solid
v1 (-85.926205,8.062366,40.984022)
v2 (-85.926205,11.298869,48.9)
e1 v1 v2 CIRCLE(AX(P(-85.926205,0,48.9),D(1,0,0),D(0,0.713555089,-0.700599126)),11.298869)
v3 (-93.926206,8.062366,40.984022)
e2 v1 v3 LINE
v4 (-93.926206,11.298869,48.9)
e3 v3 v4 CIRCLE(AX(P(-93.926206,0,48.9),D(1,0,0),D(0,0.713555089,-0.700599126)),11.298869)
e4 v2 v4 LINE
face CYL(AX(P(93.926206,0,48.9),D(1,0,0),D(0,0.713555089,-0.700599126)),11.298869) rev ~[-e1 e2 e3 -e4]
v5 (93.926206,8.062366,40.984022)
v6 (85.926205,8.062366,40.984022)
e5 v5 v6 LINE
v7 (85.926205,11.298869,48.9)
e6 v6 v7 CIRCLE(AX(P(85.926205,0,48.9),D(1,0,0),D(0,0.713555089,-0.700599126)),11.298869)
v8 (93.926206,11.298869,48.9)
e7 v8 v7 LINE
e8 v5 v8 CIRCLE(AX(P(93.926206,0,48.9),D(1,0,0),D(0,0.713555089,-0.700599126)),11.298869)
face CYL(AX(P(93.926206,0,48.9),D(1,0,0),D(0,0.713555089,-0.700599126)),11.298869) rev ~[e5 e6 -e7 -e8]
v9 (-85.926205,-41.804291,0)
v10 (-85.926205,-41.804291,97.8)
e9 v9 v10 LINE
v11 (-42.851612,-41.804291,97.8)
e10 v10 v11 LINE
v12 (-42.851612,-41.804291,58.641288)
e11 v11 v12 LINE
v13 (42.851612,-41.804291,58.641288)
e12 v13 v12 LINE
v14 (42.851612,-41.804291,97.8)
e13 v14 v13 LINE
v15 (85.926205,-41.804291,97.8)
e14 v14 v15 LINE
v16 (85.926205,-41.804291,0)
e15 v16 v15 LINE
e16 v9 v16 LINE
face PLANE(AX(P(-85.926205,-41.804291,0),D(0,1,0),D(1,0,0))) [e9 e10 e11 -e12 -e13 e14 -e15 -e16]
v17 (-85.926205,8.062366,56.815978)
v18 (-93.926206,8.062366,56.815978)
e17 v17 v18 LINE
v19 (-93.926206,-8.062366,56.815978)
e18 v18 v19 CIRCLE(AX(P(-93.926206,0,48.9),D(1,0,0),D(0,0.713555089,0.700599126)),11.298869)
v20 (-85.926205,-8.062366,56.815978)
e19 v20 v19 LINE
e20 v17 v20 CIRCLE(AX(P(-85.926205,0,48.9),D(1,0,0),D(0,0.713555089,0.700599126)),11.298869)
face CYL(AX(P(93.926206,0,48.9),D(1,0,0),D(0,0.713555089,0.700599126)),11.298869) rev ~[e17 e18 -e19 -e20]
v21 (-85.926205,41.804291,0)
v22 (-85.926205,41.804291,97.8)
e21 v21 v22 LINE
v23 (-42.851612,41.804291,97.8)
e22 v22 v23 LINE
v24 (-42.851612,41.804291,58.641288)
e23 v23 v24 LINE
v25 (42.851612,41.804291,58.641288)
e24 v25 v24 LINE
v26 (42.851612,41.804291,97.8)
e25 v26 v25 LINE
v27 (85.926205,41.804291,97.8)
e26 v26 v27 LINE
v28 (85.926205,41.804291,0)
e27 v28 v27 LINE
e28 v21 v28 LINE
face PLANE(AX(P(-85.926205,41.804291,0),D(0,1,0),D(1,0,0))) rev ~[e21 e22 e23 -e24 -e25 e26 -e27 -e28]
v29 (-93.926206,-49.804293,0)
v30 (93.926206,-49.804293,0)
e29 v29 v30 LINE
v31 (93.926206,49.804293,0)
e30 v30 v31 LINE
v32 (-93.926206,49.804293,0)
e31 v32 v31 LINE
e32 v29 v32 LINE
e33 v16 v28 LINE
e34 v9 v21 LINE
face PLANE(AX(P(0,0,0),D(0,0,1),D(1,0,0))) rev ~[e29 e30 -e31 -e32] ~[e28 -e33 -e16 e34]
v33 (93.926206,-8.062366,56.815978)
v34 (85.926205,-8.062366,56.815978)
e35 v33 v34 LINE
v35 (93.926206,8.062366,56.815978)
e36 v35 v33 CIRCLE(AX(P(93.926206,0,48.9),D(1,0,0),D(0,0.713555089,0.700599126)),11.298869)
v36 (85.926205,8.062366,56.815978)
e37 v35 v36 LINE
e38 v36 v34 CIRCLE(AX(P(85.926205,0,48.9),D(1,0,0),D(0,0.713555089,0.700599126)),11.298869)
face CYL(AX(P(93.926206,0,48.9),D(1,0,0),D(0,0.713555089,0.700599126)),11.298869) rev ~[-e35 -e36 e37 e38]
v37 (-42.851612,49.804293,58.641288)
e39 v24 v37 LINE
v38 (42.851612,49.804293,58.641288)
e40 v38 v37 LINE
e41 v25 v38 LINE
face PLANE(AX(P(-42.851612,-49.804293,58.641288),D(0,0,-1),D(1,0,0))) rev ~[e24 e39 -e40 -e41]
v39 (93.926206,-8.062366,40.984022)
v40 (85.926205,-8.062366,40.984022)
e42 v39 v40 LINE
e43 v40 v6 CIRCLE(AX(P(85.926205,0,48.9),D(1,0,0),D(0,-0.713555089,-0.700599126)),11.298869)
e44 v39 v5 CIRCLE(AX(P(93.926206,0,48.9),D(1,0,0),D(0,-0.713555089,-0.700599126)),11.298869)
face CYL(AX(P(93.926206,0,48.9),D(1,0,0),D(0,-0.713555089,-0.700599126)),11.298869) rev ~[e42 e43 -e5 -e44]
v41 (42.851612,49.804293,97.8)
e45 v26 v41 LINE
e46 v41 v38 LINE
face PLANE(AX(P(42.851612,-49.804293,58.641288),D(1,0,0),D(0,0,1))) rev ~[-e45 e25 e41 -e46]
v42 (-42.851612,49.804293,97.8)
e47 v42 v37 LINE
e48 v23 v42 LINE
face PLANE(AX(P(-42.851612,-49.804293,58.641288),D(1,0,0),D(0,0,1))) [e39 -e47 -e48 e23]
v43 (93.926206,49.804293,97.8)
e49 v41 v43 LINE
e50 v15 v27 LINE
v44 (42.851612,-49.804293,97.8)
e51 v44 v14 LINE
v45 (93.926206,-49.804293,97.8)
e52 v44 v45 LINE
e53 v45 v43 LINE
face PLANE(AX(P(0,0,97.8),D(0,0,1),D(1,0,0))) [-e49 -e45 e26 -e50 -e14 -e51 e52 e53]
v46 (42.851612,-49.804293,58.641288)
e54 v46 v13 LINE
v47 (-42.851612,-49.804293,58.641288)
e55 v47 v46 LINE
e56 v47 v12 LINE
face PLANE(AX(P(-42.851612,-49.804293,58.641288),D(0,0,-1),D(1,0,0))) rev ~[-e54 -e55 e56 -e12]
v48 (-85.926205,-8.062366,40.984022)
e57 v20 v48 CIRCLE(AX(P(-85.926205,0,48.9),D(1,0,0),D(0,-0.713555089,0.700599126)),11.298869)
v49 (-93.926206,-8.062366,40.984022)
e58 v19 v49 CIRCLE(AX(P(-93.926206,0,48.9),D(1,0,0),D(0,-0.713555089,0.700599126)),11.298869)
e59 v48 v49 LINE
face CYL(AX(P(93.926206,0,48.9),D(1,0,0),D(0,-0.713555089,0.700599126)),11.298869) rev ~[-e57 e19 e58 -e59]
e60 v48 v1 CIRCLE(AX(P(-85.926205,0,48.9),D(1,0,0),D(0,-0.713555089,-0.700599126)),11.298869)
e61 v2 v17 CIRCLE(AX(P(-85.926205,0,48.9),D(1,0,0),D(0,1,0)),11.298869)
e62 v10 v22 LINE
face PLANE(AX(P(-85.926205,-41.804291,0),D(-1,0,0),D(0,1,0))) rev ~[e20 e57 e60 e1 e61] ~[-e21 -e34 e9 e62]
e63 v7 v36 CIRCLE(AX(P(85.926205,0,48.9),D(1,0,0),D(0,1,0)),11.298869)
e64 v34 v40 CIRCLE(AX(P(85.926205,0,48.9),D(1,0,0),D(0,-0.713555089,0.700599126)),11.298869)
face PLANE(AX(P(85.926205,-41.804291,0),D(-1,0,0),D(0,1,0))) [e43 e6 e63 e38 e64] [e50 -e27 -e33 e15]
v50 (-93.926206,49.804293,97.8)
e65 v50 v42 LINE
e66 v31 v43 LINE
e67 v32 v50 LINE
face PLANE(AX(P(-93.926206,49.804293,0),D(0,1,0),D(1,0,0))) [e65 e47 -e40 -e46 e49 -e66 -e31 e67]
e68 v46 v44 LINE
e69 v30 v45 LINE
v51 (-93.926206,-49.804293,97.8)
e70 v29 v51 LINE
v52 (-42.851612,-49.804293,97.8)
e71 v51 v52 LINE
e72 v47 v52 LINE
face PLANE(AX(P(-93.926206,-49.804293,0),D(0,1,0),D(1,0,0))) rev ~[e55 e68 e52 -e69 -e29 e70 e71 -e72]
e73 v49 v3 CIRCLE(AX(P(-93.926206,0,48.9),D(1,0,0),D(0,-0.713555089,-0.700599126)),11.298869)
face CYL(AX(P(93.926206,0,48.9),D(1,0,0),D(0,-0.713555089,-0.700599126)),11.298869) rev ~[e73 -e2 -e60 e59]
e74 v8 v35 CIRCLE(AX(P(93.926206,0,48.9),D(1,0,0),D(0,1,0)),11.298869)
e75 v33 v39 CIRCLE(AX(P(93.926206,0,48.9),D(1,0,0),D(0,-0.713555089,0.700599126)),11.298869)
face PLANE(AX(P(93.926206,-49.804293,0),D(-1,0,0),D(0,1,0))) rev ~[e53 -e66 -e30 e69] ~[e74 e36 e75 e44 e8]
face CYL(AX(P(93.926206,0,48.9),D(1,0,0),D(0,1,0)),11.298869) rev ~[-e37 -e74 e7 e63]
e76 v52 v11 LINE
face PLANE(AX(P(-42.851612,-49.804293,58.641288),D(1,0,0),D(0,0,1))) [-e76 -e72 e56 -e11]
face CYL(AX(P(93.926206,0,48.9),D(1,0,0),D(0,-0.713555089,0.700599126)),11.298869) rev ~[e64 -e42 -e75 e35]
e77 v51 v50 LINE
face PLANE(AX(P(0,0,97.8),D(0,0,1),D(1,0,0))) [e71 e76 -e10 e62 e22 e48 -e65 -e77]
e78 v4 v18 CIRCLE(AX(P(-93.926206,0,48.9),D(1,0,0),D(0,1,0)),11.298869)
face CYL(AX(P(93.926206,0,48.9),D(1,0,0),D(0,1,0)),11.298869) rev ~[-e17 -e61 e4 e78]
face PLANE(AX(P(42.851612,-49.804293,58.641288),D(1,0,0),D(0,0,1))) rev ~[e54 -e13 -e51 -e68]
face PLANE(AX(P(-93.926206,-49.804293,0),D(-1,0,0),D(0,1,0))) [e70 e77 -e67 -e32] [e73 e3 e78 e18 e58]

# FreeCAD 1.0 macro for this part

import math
import FreeCAD as App
import Part
import Sketcher
Q = App.Units.Quantity

doc = App.newDocument("Part")
body = doc.addObject("PartDesign::Body", "Body")

# Sketch on XY plane
sketch1 = body.newObject("Sketcher::SketchObject", "Sketch")
sketch1.AttachmentSupport = (doc.getObject("XY_Plane"), [""])
sketch1.MapMode = "FlatFace"
sketch1.addGeometry([
    Part.LineSegment(App.Vector(-94, 50, 0), App.Vector(-94, -50, 0)),  # 0
    Part.LineSegment(App.Vector(-94, -50, 0), App.Vector(94, -50, 0)),  # 1
    Part.LineSegment(App.Vector(94, -50, 0), App.Vector(94, 50, 0)),  # 2
    Part.LineSegment(App.Vector(94, 50, 0), App.Vector(-94, 50, 0)),  # 3
    Part.LineSegment(App.Vector(86, -42, 0), App.Vector(-86, -42, 0)),  # 4
    Part.LineSegment(App.Vector(-86, -42, 0), App.Vector(-86, 42, 0)),  # 5
    Part.LineSegment(App.Vector(-86, 42, 0), App.Vector(86, 42, 0)),  # 6
    Part.LineSegment(App.Vector(86, 42, 0), App.Vector(86, -42, 0)),  # 7
], False)
sketch1.addConstraint([
    Sketcher.Constraint("Coincident", 0, 2, 1, 1),
    Sketcher.Constraint("Coincident", 1, 2, 2, 1),
    Sketcher.Constraint("Coincident", 2, 2, 3, 1),
    Sketcher.Constraint("Coincident", 3, 2, 0, 1),
    Sketcher.Constraint("Coincident", 4, 2, 5, 1),
    Sketcher.Constraint("Coincident", 5, 2, 6, 1),
    Sketcher.Constraint("Coincident", 6, 2, 7, 1),
    Sketcher.Constraint("Coincident", 7, 2, 4, 1),
    Sketcher.Constraint("Vertical", 0),
    Sketcher.Constraint("Horizontal", 1),
    Sketcher.Constraint("Vertical", 2),
    Sketcher.Constraint("Horizontal", 3),
    Sketcher.Constraint("Horizontal", 4),
    Sketcher.Constraint("Vertical", 5),
    Sketcher.Constraint("Horizontal", 6),
    Sketcher.Constraint("Vertical", 7),
    Sketcher.Constraint("Symmetric", 0, 2, 2, 2, -1, 1),
    Sketcher.Constraint("Symmetric", 4, 2, 6, 2, -1, 1),
    Sketcher.Constraint("DistanceX", 0, 2, 4, 2, Q("8.000001 mm")),
    Sketcher.Constraint("DistanceY", 0, 2, 4, 2, Q("8.000001 mm")),
    Sketcher.Constraint("DistanceX", 4, 2, 4, 1, Q("171.85241 mm")),
    Sketcher.Constraint("DistanceY", 0, 2, 0, 1, Q("99.608585 mm")),
])
pad1 = body.newObject("PartDesign::Pad", "Pad")
pad1.Profile = sketch1
pad1.Length = 97.8

# Sketch on YZ plane
sketch2 = body.newObject("Sketcher::SketchObject", "Sketch001")
sketch2.AttachmentSupport = (doc.getObject("YZ_Plane"), [""])
sketch2.MapMode = "FlatFace"
sketch2.AttachmentOffset = App.Placement(App.Vector(0, 0, 93.926206), App.Rotation())
sketch2.addGeometry([
    Part.ArcOfCircle(Part.Circle(App.Vector(0, 49, 0), App.Vector(0, 0, 1), 11), math.radians(136), math.radians(224)),  # 0
    Part.ArcOfCircle(Part.Circle(App.Vector(0, 49, 0), App.Vector(0, 0, 1), 11), math.radians(-136), math.radians(-44)),  # 1
    Part.ArcOfCircle(Part.Circle(App.Vector(0, 49, 0), App.Vector(0, 0, 1), 11), math.radians(-44), math.radians(0)),  # 2
    Part.ArcOfCircle(Part.Circle(App.Vector(0, 49, 0), App.Vector(0, 0, 1), 11), math.radians(0), math.radians(44)),  # 3
    Part.ArcOfCircle(Part.Circle(App.Vector(0, 49, 0), App.Vector(0, 0, 1), 11), math.radians(44), math.radians(136)),  # 4
], False)
sketch2.addConstraint([
    Sketcher.Constraint("Tangent", 0, 2, 1, 1),
    Sketcher.Constraint("Tangent", 1, 2, 2, 1),
    Sketcher.Constraint("Tangent", 2, 2, 3, 1),
    Sketcher.Constraint("Tangent", 3, 2, 4, 1),
    Sketcher.Constraint("Tangent", 4, 2, 0, 1),
    Sketcher.Constraint("Coincident", 2, 3, 0, 3),
    Sketcher.Constraint("Symmetric", 0, 2, 1, 2, -2),
    Sketcher.Constraint("Horizontal", 4, 3, 2, 2),
    Sketcher.Constraint("Horizontal", 3, 2, 4, 2),
    Sketcher.Constraint("Vertical", 1, 2, 3, 2),
    Sketcher.Constraint("DistanceY", -1, 1, 0, 3, Q("48.9 mm")),
    Sketcher.Constraint("Radius", 0, Q("11.298869 mm")),
    Sketcher.Constraint("DistanceX", 0, 2, -1, 1, Q("8.062366 mm")),
])
pocket1 = body.newObject("PartDesign::Pocket", "Pocket")
pocket1.Profile = sketch2
pocket1.Type = "ThroughAll"

# Sketch on XZ plane
sketch3 = body.newObject("Sketcher::SketchObject", "Sketch002")
sketch3.AttachmentSupport = (doc.getObject("XZ_Plane"), [""])
sketch3.MapMode = "FlatFace"
sketch3.AttachmentOffset = App.Placement(App.Vector(0, 0, 49.804293), App.Rotation())
sketch3.addGeometry([
    Part.LineSegment(App.Vector(-43, 98, 0), App.Vector(-43, 59, 0)),
    Part.LineSegment(App.Vector(-43, 59, 0), App.Vector(43, 59, 0)),
    Part.LineSegment(App.Vector(43, 59, 0), App.Vector(43, 98, 0)),
    Part.LineSegment(App.Vector(43, 98, 0), App.Vector(-43, 98, 0)),
], False)
sketch3.addConstraint([
    Sketcher.Constraint("Coincident", 0, 2, 1, 1),
    Sketcher.Constraint("Coincident", 1, 2, 2, 1),
    Sketcher.Constraint("Coincident", 2, 2, 3, 1),
    Sketcher.Constraint("Coincident", 3, 2, 0, 1),
    Sketcher.Constraint("Vertical", 0),
    Sketcher.Constraint("Horizontal", 1),
    Sketcher.Constraint("Vertical", 2),
    Sketcher.Constraint("Horizontal", 3),
    Sketcher.Constraint("DistanceY", -1, 1, 2, 2, Q("97.8 mm")),
    Sketcher.Constraint("DistanceY", 0, 2, 0, 1, Q("39.158712 mm")),
    Sketcher.Constraint("DistanceX", 1, 1, 1, 2, Q("85.703224 mm")),
    Sketcher.Constraint("DistanceX", 0, 2, -1, 1, Q("42.851612 mm")),
])
pocket2 = body.newObject("PartDesign::Pocket", "Pocket001")
pocket2.Profile = sketch3
pocket2.Type = "ThroughAll"

doc.recompute()
